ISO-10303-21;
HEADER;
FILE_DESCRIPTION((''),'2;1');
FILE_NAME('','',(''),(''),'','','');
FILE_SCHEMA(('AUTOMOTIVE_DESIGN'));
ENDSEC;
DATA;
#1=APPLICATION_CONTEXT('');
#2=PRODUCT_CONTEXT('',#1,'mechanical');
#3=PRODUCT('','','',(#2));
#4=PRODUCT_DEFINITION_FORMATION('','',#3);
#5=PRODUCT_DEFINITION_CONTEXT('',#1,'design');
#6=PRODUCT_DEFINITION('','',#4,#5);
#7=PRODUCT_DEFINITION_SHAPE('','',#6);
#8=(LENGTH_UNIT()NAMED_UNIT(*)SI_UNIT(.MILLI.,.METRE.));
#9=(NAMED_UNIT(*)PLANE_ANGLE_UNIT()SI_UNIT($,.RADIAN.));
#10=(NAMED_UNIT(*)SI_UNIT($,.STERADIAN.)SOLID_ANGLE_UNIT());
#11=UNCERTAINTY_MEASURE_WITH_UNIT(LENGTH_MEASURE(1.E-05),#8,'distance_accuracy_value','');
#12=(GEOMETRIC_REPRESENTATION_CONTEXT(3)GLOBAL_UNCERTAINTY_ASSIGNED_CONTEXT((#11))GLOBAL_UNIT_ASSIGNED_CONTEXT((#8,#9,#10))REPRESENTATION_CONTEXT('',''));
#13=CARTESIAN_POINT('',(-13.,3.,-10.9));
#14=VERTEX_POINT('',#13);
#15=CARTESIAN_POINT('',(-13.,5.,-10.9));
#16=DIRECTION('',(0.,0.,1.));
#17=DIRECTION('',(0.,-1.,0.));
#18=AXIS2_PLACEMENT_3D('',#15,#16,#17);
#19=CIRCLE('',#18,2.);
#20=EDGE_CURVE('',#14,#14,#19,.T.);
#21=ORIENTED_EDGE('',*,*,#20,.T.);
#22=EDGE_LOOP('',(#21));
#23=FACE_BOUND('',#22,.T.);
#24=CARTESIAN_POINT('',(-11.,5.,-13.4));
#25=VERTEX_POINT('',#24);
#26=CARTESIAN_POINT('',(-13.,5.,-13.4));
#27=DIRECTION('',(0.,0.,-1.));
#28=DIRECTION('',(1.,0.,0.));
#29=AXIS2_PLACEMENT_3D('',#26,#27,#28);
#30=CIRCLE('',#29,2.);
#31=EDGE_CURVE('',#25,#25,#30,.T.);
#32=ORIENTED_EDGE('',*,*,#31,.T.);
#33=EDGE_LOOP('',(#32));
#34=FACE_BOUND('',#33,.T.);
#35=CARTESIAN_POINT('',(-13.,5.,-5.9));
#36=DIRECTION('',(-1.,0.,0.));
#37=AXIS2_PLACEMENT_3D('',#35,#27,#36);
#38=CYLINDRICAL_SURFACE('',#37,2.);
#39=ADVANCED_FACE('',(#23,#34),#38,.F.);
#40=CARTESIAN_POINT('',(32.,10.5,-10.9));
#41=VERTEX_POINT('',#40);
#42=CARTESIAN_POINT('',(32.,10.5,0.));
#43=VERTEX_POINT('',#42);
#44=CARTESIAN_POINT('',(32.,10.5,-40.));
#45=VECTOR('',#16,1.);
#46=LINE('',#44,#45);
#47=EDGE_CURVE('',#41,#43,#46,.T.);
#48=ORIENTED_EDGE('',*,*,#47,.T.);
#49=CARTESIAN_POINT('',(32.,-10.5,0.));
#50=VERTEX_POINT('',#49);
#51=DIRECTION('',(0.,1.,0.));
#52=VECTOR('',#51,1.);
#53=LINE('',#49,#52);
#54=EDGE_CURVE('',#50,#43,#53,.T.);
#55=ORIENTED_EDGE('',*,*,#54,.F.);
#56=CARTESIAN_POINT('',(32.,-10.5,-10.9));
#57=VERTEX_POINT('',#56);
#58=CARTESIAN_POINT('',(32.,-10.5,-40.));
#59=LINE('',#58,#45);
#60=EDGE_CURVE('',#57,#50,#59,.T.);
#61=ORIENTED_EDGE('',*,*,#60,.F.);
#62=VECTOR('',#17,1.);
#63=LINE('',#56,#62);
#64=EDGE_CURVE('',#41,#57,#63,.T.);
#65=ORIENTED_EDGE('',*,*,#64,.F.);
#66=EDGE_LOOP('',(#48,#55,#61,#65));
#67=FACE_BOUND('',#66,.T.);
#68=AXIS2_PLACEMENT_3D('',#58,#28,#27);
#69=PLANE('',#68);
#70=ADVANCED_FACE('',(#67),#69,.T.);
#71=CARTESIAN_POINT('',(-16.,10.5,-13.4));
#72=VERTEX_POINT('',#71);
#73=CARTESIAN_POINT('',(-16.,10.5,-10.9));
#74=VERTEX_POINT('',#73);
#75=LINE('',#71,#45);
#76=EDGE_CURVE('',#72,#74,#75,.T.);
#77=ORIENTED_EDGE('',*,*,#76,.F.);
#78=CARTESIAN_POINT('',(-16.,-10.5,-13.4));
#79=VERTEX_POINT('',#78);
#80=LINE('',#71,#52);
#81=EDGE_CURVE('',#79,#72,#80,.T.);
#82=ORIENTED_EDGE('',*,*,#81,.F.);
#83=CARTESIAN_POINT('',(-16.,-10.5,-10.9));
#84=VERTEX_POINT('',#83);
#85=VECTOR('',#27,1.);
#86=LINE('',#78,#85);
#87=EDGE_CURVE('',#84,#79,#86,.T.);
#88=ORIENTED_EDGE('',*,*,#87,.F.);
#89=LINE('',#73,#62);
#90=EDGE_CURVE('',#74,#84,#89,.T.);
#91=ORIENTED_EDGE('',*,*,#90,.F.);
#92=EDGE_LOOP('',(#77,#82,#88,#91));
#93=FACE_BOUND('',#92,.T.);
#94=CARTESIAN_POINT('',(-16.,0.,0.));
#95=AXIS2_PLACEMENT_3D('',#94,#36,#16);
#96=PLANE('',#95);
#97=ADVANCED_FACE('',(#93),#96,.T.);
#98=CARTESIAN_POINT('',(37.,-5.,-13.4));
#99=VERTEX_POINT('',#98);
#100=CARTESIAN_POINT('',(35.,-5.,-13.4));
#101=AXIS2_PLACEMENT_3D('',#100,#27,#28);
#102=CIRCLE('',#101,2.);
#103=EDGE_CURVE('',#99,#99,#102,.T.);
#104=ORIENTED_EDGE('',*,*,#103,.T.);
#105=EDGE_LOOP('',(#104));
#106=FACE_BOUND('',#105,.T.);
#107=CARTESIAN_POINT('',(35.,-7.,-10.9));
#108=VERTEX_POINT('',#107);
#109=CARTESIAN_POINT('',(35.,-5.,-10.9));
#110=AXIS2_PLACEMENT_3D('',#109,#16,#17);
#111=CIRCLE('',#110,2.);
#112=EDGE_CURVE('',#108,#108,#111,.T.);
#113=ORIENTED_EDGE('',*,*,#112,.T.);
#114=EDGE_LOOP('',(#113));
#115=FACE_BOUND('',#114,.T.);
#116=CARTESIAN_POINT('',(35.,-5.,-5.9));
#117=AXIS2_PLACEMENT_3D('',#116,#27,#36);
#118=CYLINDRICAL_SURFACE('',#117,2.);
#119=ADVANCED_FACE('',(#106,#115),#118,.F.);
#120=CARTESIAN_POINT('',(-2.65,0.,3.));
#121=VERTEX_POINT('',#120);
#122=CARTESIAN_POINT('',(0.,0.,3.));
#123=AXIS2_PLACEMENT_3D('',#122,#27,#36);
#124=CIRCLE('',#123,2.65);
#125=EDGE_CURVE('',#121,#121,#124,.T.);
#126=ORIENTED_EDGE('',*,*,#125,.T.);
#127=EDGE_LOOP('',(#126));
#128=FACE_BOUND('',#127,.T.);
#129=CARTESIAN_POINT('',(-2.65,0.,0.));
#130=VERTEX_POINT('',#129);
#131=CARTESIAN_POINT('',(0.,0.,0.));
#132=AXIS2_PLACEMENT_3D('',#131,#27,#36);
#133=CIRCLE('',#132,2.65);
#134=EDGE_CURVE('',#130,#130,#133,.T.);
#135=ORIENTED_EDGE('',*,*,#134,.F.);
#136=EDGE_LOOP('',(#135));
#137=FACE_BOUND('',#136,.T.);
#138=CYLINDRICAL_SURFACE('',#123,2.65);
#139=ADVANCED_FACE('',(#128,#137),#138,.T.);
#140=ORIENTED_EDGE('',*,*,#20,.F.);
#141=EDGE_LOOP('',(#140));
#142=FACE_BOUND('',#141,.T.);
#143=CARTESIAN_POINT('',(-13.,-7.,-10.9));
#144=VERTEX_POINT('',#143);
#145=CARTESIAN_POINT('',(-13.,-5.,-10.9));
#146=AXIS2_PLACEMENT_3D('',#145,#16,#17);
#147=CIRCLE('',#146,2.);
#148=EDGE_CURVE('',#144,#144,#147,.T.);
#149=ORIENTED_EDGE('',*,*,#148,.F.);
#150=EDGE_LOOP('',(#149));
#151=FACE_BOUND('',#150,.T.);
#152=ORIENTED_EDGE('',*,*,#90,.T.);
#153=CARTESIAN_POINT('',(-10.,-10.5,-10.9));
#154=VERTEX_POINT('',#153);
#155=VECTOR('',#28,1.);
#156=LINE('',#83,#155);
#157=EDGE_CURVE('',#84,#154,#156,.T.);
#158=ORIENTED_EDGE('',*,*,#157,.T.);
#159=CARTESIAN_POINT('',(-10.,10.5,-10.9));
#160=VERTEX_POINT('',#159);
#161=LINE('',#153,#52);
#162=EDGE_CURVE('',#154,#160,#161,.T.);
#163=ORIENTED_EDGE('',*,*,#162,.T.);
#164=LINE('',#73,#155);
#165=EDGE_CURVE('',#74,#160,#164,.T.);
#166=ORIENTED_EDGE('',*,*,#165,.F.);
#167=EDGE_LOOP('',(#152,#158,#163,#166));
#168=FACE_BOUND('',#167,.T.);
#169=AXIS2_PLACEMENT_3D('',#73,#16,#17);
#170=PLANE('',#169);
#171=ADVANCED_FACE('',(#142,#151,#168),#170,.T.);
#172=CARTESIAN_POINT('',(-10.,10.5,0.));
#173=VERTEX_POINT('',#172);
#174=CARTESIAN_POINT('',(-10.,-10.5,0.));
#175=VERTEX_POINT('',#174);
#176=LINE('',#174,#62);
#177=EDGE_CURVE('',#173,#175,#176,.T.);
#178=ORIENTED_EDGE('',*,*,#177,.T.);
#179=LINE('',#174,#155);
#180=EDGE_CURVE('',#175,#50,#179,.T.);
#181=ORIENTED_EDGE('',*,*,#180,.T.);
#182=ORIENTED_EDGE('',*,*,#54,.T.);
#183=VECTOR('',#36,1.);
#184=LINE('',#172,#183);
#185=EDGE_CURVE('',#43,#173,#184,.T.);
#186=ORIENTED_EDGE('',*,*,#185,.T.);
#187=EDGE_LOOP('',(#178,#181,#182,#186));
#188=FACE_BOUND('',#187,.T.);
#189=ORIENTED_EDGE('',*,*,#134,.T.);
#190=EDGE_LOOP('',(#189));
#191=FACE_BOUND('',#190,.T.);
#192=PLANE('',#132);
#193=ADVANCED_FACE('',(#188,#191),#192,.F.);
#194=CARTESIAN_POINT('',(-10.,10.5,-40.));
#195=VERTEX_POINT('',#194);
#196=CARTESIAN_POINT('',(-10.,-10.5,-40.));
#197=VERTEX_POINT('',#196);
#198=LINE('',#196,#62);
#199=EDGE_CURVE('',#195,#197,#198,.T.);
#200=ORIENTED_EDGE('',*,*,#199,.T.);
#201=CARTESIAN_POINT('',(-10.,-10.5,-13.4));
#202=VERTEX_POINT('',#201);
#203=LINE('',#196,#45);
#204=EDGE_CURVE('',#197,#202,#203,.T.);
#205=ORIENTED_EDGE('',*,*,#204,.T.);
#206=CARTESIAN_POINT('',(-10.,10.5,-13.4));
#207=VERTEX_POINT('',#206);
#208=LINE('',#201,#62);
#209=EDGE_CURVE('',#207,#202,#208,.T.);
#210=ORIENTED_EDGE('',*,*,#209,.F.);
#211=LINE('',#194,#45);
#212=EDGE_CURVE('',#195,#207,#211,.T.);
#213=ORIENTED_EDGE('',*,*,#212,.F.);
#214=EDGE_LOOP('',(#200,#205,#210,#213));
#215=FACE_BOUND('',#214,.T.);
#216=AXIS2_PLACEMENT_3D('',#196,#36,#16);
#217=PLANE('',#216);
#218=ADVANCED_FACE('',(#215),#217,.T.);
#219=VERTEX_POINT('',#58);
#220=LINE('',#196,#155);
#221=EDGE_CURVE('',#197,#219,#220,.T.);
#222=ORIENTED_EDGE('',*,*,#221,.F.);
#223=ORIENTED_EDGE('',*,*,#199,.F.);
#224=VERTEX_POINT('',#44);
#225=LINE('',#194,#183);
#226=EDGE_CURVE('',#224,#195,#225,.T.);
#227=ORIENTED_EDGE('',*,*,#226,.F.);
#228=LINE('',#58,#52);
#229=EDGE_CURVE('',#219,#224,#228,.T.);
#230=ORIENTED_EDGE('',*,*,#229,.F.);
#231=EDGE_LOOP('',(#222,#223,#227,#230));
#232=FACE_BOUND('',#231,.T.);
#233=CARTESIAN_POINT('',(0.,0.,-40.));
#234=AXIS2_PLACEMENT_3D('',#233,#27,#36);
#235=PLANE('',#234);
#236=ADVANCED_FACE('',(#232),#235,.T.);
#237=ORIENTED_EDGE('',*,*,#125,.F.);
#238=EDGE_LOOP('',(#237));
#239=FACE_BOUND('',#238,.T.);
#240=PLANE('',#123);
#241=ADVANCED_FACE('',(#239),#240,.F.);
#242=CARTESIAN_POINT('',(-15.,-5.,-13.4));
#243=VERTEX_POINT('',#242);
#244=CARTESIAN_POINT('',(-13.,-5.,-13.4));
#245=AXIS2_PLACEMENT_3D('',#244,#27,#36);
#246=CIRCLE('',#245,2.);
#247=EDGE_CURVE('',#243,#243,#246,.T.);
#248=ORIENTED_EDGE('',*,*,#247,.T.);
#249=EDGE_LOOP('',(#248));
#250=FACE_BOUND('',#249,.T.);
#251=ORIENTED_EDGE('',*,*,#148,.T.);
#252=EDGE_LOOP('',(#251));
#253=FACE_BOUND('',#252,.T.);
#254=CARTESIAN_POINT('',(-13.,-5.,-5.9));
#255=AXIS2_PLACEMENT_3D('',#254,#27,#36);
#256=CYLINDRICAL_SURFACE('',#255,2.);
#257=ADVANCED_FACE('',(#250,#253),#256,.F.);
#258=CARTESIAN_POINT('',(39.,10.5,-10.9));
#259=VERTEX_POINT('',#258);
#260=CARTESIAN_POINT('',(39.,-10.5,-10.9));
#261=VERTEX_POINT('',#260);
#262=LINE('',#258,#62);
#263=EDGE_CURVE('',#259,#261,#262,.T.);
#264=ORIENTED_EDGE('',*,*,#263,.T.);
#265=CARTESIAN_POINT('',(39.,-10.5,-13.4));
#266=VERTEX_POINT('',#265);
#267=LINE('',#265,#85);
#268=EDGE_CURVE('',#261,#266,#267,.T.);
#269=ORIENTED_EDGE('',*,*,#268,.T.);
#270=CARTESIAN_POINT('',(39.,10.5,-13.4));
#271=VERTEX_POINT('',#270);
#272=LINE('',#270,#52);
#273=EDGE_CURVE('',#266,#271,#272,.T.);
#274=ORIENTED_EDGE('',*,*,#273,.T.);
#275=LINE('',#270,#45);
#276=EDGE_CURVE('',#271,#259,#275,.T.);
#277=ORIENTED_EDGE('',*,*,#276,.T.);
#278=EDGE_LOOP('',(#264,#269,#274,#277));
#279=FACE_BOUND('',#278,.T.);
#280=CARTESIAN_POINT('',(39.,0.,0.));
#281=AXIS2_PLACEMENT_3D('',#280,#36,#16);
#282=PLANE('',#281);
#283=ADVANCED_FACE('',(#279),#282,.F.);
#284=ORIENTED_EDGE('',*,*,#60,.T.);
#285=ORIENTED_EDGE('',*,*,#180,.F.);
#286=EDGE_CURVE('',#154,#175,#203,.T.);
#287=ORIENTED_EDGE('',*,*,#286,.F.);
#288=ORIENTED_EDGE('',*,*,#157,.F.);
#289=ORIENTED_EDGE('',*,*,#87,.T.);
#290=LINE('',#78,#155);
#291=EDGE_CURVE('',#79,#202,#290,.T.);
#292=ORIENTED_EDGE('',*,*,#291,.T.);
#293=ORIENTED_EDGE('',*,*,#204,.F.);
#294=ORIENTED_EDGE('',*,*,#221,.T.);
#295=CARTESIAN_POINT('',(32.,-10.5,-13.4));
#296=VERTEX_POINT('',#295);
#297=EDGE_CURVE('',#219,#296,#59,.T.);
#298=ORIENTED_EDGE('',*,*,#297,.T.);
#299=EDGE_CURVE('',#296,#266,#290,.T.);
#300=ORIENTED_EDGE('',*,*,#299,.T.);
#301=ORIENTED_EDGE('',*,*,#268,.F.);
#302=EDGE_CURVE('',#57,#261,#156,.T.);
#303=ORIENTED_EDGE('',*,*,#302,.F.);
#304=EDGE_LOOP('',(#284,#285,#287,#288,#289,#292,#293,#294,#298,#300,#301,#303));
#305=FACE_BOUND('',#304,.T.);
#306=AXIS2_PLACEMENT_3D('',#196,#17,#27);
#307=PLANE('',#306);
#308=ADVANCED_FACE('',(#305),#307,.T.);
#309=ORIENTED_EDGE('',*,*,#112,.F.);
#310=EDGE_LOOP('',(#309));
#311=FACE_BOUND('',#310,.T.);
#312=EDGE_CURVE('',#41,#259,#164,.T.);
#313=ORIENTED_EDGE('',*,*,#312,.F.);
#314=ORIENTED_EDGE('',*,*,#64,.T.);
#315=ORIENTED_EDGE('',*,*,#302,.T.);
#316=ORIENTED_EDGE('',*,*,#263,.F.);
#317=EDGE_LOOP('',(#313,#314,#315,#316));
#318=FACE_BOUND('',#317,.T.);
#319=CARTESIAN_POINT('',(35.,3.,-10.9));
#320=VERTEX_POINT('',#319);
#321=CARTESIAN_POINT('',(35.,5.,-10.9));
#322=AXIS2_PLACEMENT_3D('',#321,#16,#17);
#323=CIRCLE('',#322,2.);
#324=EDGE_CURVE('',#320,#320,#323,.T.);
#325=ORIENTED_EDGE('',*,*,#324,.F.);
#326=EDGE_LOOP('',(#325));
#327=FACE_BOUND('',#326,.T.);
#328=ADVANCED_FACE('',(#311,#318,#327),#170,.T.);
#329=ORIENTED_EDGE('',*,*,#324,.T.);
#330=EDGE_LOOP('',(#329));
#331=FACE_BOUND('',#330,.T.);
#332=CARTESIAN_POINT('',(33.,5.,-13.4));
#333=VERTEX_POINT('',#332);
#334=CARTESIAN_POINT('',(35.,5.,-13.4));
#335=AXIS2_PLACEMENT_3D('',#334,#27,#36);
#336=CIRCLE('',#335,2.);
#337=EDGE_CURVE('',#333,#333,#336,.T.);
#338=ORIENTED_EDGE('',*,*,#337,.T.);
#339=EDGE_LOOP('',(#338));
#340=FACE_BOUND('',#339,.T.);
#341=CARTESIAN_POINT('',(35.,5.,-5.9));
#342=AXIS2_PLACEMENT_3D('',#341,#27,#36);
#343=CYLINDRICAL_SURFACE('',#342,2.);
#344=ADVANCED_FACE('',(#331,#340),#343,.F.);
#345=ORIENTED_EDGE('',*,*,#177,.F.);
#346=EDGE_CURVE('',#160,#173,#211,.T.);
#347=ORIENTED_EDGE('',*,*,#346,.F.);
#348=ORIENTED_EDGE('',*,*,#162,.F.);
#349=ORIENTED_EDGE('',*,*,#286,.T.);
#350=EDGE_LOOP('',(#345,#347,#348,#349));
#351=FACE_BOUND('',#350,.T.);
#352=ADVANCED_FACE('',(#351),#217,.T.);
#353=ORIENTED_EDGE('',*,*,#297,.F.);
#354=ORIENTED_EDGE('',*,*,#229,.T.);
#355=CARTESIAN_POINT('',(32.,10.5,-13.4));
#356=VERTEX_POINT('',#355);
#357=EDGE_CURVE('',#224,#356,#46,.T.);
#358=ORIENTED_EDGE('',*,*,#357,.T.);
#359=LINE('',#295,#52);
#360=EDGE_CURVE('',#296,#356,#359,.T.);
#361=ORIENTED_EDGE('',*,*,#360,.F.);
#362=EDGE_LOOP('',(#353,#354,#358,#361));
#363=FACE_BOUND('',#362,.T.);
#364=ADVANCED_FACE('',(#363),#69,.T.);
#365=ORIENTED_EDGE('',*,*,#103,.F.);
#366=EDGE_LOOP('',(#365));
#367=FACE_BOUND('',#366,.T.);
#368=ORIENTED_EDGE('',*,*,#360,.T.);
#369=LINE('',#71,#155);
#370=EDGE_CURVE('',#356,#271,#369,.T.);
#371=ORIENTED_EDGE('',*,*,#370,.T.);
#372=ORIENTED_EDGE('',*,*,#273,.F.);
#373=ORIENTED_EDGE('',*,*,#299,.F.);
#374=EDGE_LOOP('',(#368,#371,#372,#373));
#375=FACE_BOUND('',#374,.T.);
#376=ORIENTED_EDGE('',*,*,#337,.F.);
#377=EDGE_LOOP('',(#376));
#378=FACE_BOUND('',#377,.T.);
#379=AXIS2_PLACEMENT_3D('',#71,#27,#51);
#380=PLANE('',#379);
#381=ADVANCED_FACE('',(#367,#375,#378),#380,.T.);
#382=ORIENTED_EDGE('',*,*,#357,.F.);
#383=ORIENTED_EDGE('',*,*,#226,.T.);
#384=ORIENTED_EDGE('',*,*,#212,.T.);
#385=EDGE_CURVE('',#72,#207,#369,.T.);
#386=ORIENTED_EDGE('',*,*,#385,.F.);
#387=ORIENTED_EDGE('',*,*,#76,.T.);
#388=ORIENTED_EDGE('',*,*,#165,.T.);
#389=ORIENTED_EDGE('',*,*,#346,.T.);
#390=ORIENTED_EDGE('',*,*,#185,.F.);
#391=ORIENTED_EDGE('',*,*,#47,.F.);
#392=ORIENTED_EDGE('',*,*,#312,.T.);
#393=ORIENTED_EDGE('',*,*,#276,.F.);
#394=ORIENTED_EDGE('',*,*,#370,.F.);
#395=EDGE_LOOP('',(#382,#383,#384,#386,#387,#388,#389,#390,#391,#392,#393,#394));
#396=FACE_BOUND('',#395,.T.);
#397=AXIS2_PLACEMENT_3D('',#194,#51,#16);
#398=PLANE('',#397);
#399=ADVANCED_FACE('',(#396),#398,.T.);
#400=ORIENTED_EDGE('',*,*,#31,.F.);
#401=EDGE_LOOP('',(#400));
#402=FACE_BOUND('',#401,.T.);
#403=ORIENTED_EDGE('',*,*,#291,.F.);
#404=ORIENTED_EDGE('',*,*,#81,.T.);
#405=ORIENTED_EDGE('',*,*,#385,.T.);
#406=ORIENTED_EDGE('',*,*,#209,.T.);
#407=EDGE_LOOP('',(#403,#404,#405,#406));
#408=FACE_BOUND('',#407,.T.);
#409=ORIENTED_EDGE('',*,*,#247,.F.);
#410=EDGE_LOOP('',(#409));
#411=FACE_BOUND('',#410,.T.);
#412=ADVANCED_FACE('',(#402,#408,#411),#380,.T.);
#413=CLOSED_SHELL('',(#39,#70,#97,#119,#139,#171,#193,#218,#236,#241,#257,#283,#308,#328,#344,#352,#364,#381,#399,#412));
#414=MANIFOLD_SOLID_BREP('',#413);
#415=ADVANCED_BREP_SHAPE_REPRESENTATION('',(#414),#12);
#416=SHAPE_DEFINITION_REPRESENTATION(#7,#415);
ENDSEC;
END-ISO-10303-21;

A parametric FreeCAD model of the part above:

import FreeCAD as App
import Part
import Sketcher
from FreeCAD import Vector
Q = App.Units.Quantity

doc = App.newDocument("Part")
body = doc.addObject("PartDesign::Body", "Body")

# Sketch on XY plane
sketch1 = doc.addObject("Sketcher::SketchObject", "Sketch")
body.addObject(sketch1)
sketch1.AttachmentSupport = (doc.XY_Plane, [""])
sketch1.MapMode = "FlatFace"
sketch1.addGeometry([
    Part.LineSegment(Vector(-10, 10, 0), Vector(-10, -10, 0)),
    Part.LineSegment(Vector(-10, -10, 0), Vector(32, -10, 0)),
    Part.LineSegment(Vector(32, -10, 0), Vector(32, 10, 0)),
    Part.LineSegment(Vector(32, 10, 0), Vector(-10, 10, 0)),
], False)
sketch1.addConstraint([
    Sketcher.Constraint("Coincident", 0, 2, 1, 1),
    Sketcher.Constraint("Coincident", 1, 2, 2, 1),
    Sketcher.Constraint("Coincident", 2, 2, 3, 1),
    Sketcher.Constraint("Coincident", 3, 2, 0, 1),
    Sketcher.Constraint("Vertical", 0),
    Sketcher.Constraint("Horizontal", 1),
    Sketcher.Constraint("Vertical", 2),
    Sketcher.Constraint("Horizontal", 3),
    Sketcher.Constraint("DistanceX", 1, 1, 1, 2, Q("42 mm")),
    Sketcher.Constraint("DistanceY", 0, 2, 0, 1, Q("21 mm")),
    Sketcher.Constraint("DistanceX", 0, 2, -1, 1, Q("10 mm")),
    Sketcher.Constraint("DistanceY", 0, 2, -1, 1, Q("10.5 mm")),
])
pad1 = doc.addObject("PartDesign::Pad", "Pad")
body.addObject(pad1)
pad1.Profile = sketch1
pad1.Length = 40
pad1.Reversed = True

# Sketch on YZ plane
sketch2 = doc.addObject("Sketcher::SketchObject", "Sketch001")
body.addObject(sketch2)
sketch2.AttachmentSupport = (doc.YZ_Plane, [""])
sketch2.MapMode = "FlatFace"
sketch2.AttachmentOffset = App.Placement(Vector(0, 0, 32), App.Rotation())
sketch2.addGeometry([
    Part.LineSegment(Vector(10.5, -10.9, 0), Vector(-10.5, -10.9, 0)),
    Part.LineSegment(Vector(-10.5, -10.9, 0), Vector(-10.5, -13.4, 0)),
    Part.LineSegment(Vector(-10.5, -13.4, 0), Vector(10.5, -13.4, 0)),
    Part.LineSegment(Vector(10.5, -13.4, 0), Vector(10.5, -10.9, 0)),
], False)
sketch2.addConstraint([
    Sketcher.Constraint("Coincident", 0, 2, 1, 1),
    Sketcher.Constraint("Coincident", 1, 2, 2, 1),
    Sketcher.Constraint("Coincident", 2, 2, 3, 1),
    Sketcher.Constraint("Coincident", 3, 2, 0, 1),
    Sketcher.Constraint("Horizontal", 0),
    Sketcher.Constraint("Vertical", 1),
    Sketcher.Constraint("Horizontal", 2),
    Sketcher.Constraint("Vertical", 3),
    Sketcher.Constraint("DistanceX", 0, 2, 0, 1, Q("21 mm")),
    Sketcher.Constraint("DistanceY", 1, 2, 1, 1, Q("2.5 mm")),
    Sketcher.Constraint("DistanceX", 0, 2, -1, 1, Q("10.5 mm")),
    Sketcher.Constraint("DistanceY", 0, 2, -1, 1, Q("10.9 mm")),
])
pad2 = doc.addObject("PartDesign::Pad", "Pad001")
body.addObject(pad2)
pad2.Profile = sketch2
pad2.Type = "TwoLengths"
pad2.Length = 7
pad2.Length2 = 48

# Sketch on XY plane
sketch3 = doc.addObject("Sketcher::SketchObject", "Sketch002")
body.addObject(sketch3)
sketch3.AttachmentSupport = (doc.XY_Plane, [""])
sketch3.MapMode = "FlatFace"
sketch3.AttachmentOffset = App.Placement(Vector(0, 0, -13.4), App.Rotation())
sketch3.addGeometry([
    Part.Circle(Vector(-13, 5, 0), Vector(0, 0, 1), 2),
    Part.Circle(Vector(-13, -5, 0), Vector(0, 0, 1), 2),
    Part.Circle(Vector(35, -5, 0), Vector(0, 0, 1), 2),
    Part.Circle(Vector(35, 5, 0), Vector(0, 0, 1), 2),
], False)
sketch3.addConstraint([
    Sketcher.Constraint("Equal", 0, 1),
    Sketcher.Constraint("Equal", 1, 2),
    Sketcher.Constraint("Equal", 2, 3),
    Sketcher.Constraint("Symmetric", 0, 3, 1, 3, -1),
    Sketcher.Constraint("Symmetric", 2, 3, 3, 3, -1),
    Sketcher.Constraint("Horizontal", 1, 3, 2, 3),
    Sketcher.Constraint("Diameter", 0, Q("4 mm")),
    Sketcher.Constraint("DistanceX", 0, 3, -1, 1, Q("13 mm")),
    Sketcher.Constraint("DistanceY", -1, 1, 0, 3, Q("5 mm")),
    Sketcher.Constraint("DistanceX", -1, 1, 2, 3, Q("35 mm")),
])
pocket1 = doc.addObject("PartDesign::Pocket", "Pocket")
body.addObject(pocket1)
pocket1.Profile = sketch3
pocket1.Length = 7.5
pocket1.Reversed = True

# Sketch on XY plane
sketch4 = doc.addObject("Sketcher::SketchObject", "Sketch003")
body.addObject(sketch4)
sketch4.AttachmentSupport = (doc.XY_Plane, [""])
sketch4.MapMode = "FlatFace"
sketch4.addGeometry(Part.Circle(Vector(0, 0, 0), Vector(0, 0, 1), 2.6), False)
sketch4.addConstraint([
    Sketcher.Constraint("Coincident", 0, 3, -1, 1),
    Sketcher.Constraint("Diameter", 0, Q("5.3 mm")),
])
pad3 = doc.addObject("PartDesign::Pad", "Pad002")
body.addObject(pad3)
pad3.Profile = sketch4
pad3.Length = 3

doc.recompute()
